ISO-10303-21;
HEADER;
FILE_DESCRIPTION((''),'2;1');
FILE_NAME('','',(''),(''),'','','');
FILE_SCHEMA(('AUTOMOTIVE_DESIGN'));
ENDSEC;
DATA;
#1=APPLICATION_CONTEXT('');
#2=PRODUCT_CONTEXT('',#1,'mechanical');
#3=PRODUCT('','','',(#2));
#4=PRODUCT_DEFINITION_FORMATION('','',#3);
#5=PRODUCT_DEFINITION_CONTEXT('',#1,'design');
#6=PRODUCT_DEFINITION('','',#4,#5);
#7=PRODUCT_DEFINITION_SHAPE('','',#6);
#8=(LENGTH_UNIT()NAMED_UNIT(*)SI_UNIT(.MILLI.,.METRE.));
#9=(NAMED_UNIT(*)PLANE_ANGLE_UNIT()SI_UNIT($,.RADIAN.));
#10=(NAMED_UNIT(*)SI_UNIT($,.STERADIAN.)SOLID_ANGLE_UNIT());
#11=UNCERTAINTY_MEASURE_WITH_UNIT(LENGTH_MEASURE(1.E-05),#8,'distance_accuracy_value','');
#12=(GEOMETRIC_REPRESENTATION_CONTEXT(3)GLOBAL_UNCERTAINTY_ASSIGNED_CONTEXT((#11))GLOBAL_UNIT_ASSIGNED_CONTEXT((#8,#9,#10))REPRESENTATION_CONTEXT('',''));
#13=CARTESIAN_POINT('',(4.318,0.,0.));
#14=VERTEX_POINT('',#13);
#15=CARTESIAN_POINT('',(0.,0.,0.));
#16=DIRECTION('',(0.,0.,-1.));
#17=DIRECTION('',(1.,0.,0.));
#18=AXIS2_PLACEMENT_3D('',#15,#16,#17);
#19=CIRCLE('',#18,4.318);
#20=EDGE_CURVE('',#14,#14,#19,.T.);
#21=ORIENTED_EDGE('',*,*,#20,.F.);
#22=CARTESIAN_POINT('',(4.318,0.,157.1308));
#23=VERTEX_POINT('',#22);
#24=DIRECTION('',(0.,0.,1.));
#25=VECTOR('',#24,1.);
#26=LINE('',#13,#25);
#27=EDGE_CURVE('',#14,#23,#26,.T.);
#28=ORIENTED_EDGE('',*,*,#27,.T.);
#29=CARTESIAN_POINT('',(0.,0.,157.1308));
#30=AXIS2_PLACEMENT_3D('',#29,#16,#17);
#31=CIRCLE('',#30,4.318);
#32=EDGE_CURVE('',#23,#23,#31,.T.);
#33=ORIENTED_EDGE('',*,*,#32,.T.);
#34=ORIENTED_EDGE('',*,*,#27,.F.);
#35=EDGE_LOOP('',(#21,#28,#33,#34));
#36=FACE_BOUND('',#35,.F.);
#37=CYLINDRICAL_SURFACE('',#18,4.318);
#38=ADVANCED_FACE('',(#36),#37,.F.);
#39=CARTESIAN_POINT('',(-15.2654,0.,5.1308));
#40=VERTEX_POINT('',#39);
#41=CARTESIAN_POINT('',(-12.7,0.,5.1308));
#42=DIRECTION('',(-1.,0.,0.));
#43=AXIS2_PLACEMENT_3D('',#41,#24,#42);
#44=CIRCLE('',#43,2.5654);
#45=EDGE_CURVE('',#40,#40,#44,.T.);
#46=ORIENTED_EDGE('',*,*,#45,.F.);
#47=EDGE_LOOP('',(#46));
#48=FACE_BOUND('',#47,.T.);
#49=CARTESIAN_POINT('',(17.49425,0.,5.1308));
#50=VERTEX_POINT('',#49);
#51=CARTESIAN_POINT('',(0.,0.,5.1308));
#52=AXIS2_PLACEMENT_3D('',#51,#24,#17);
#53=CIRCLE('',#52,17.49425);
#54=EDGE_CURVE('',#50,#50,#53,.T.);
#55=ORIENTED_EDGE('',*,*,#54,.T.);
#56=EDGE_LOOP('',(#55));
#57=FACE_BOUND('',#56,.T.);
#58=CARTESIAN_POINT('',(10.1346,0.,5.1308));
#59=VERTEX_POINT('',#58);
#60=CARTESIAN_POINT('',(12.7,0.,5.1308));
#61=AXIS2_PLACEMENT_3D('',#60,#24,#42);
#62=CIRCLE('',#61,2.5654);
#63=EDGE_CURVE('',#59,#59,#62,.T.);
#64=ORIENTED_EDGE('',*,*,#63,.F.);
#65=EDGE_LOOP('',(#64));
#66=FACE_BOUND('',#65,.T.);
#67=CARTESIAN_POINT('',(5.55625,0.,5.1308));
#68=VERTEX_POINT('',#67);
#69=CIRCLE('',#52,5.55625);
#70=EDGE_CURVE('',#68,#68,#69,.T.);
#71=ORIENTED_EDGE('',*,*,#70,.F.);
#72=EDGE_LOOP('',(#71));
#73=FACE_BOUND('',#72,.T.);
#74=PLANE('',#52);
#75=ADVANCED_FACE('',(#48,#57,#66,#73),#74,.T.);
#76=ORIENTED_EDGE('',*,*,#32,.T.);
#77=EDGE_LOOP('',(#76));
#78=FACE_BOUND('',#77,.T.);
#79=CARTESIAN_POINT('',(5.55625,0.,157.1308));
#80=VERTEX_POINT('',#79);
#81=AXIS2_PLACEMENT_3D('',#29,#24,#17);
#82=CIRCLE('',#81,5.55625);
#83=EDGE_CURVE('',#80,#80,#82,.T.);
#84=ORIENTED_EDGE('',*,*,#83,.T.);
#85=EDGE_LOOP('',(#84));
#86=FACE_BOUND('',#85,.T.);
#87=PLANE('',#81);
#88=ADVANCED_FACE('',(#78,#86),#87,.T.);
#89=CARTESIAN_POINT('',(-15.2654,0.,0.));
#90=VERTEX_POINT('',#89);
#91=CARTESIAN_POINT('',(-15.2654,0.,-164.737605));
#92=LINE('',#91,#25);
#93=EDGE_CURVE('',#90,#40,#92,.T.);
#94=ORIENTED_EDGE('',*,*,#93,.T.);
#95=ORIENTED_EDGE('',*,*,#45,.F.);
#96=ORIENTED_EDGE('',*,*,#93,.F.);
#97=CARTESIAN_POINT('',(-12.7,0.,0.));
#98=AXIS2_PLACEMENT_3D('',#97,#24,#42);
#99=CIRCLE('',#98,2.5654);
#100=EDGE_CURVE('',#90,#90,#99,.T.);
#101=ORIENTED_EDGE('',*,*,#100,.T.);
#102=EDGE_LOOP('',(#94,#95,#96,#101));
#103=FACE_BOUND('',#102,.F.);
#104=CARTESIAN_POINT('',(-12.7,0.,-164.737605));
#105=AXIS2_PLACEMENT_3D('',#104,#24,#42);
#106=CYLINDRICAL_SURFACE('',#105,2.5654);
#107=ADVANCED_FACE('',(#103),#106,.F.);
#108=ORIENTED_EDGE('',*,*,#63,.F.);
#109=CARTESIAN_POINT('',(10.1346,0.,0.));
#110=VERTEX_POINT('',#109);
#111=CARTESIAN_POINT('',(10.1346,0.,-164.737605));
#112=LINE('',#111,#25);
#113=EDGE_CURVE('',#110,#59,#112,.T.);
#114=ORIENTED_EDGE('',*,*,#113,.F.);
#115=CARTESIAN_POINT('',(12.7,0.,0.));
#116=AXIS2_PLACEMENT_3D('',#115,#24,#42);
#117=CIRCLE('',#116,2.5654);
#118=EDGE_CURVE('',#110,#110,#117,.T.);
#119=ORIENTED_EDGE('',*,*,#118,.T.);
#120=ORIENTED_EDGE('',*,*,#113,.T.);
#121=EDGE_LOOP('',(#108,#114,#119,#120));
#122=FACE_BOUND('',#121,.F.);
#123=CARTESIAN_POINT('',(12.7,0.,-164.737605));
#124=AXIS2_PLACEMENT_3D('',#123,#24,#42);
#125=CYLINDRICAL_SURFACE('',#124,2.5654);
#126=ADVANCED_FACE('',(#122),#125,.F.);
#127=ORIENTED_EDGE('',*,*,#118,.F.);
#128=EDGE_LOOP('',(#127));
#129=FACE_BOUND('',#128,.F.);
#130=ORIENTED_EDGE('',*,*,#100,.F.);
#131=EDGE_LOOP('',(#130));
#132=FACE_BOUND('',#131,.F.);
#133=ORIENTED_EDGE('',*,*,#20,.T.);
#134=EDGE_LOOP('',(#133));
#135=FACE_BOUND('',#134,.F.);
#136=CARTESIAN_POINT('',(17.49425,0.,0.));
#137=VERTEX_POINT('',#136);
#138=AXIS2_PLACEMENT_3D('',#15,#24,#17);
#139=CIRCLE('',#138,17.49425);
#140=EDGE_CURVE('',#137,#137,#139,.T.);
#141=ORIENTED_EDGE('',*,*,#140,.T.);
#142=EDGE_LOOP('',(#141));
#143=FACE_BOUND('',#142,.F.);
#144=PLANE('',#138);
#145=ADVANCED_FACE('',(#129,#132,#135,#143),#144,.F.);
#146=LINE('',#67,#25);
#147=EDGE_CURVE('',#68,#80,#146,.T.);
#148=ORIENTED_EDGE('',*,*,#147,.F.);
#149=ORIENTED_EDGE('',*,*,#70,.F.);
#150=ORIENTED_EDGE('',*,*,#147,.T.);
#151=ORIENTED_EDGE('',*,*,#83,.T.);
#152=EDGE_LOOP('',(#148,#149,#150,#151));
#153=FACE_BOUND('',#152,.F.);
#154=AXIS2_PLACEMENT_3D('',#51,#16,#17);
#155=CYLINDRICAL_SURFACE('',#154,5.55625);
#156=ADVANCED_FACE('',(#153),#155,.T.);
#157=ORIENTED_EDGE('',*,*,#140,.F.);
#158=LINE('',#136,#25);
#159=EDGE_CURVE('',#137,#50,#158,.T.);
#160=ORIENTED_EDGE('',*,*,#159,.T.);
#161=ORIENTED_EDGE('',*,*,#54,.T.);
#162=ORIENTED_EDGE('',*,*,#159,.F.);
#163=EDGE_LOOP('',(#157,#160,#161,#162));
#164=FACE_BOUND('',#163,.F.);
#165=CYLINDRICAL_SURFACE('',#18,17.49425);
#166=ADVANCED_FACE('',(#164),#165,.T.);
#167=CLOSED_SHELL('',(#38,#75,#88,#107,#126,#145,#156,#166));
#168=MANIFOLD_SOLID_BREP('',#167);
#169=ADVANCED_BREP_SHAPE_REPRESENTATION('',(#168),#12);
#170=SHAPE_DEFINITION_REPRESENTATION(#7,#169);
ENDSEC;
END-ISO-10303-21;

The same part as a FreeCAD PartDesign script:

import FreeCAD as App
import Part
import Sketcher
from FreeCAD import Vector
Q = App.Units.Quantity

doc = App.newDocument("Part")
params = doc.addObject("Spreadsheet::Sheet", "Params")
for row, (alias, value) in enumerate([
    ("pad1_length", "0.202 in"),
    ("sketch2_diameter", "0.4375 in"),
    ("pad2_length", "152 mm"),
    ("sketch3_diameter", "0.34 in"),
    ("sketch4_diameter", "0.202 in"),
    ("hole_diameter", "0.202 in"),
], start=1):
    params.set(f"A{row}", alias)
    params.set(f"B{row}", "=" + value)
    params.setAlias(f"B{row}", alias)

body = doc.addObject("PartDesign::Body", "Body")

sketch1 = body.newObject("Sketcher::SketchObject", "Sketch")
sketch1.AttachmentSupport = (doc.getObject("XY_Plane"), [""])
sketch1.MapMode = "FlatFace"
sketch1.addGeometry(Part.Circle(Vector(0, 0, 0), Vector(0, 0, 1), 17), False)
sketch1.addConstraint([
    Sketcher.Constraint("Coincident", 0, 3, -1, 1),
    Sketcher.Constraint("Diameter", 0, Q("1.3775 in")),
])
pad1 = body.newObject("PartDesign::Pad", "Pad")
pad1.Profile = sketch1
pad1.setExpression("Length", "Params.pad1_length")

sketch2 = body.newObject("Sketcher::SketchObject", "Sketch001")
sketch2.AttachmentSupport = (doc.getObject("XY_Plane"), [""])
sketch2.MapMode = "FlatFace"
sketch2.AttachmentOffset = App.Placement(Vector(0, 0, 0.202 * 25.4), App.Rotation())
sketch2.addGeometry(Part.Circle(Vector(0, 0, 0), Vector(0, 0, 1), 6), False)
sketch2.addConstraint([
    Sketcher.Constraint("Coincident", 0, 3, -1, 1),
    Sketcher.Constraint("Diameter", 0, Q("0.4375 in")),
])
sketch2.setExpression("Constraints[1]", "Params.sketch2_diameter")
pad2 = body.newObject("PartDesign::Pad", "Pad001")
pad2.Profile = sketch2
pad2.setExpression("Length", "Params.pad2_length")

sketch3 = body.newObject("Sketcher::SketchObject", "Sketch002")
sketch3.AttachmentSupport = (doc.getObject("XY_Plane"), [""])
sketch3.MapMode = "FlatFace"
sketch3.addGeometry(Part.Circle(Vector(0, 0, 0), Vector(0, 0, 1), 4.3), False)
sketch3.addConstraint([
    Sketcher.Constraint("Coincident", 0, 3, -1, 1),
    Sketcher.Constraint("Diameter", 0, Q("0.34 in")),
])
sketch3.setExpression("Constraints[1]", "Params.sketch3_diameter")
pocket1 = body.newObject("PartDesign::Pocket", "Pocket")
pocket1.Profile = sketch3
pocket1.Type = "ThroughAll"
pocket1.Reversed = True

sketch4 = body.newObject("Sketcher::SketchObject", "Sketch003")
sketch4.AttachmentSupport = (doc.getObject("XY_Plane"), [""])
sketch4.MapMode = "FlatFace"
sketch4.addGeometry([
    Part.Circle(Vector(-12.7, 0, 0), Vector(0, 0, 1), 2.6),
    Part.Circle(Vector(12.7, 0, 0), Vector(0, 0, 1), 2.6),
], False)
sketch4.addConstraint([
    Sketcher.Constraint("Equal", 0, 1),
    Sketcher.Constraint("Symmetric", 0, 3, 1, 3, -1, 1),
    Sketcher.Constraint("PointOnObject", 0, 3, -1),
    Sketcher.Constraint("Diameter", 0, Q("0.202 in")),
    Sketcher.Constraint("DistanceX", 0, 3, 1, 3, Q("1 in")),
])
sketch4.setExpression("Constraints[3]", "Params.sketch4_diameter")
doc.recompute()
hole = body.newObject("PartDesign::Hole", "Hole")
hole.Profile = sketch4
hole.ThreadType = "None"
hole.setExpression("Diameter", "Params.hole_diameter")
hole.DepthType = "ThroughAll"
hole.Reversed = True

doc.recompute()
